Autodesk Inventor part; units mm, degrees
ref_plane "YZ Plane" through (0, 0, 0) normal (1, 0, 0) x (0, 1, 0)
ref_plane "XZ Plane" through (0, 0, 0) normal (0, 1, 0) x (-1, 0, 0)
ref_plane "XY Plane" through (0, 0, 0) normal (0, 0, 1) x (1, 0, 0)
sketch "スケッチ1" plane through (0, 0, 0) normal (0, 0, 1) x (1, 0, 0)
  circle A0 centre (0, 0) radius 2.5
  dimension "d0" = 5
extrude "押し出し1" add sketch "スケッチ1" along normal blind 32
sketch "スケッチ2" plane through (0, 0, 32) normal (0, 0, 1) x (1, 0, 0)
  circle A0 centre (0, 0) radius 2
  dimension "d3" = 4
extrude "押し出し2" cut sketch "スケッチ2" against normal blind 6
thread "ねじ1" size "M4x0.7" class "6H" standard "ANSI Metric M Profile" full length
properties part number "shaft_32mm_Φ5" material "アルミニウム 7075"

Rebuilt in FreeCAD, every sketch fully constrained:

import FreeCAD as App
import Part
import Sketcher

V = App.Vector

doc = App.newDocument("Part")
body = doc.addObject("PartDesign::Body", "Body")

# Sketch on XY plane
sketch1 = doc.addObject("Sketcher::SketchObject", "Sketch")
body.addObject(sketch1)
sketch1.AttachmentSupport = (doc.XY_Plane, [""])
sketch1.MapMode = "FlatFace"
sketch1.addGeometry(Part.Circle(V(0, 0, 0), V(0, 0, 1), 2.5), False)
sketch1.addConstraint([
    Sketcher.Constraint("Coincident", 0, 3, -1, 1),
    Sketcher.Constraint("Diameter", 0, 5.0),
])
pad1 = doc.addObject("PartDesign::Pad", "Pad")
body.addObject(pad1)
pad1.Profile = sketch1
pad1.Length = 32

# Sketch on XY plane
sketch2 = doc.addObject("Sketcher::SketchObject", "Sketch001")
body.addObject(sketch2)
sketch2.AttachmentSupport = (doc.XY_Plane, [""])
sketch2.MapMode = "FlatFace"
sketch2.AttachmentOffset = App.Placement(V(0, 0, 32), App.Rotation())
sketch2.addGeometry(Part.Circle(V(0, 0, 0), V(0, 0, 1), 2), False)
sketch2.addConstraint([
    Sketcher.Constraint("Coincident", 0, 3, -1, 1),
    Sketcher.Constraint("Diameter", 0, 4.0),
])
pocket1 = doc.addObject("PartDesign::Pocket", "Pocket")
body.addObject(pocket1)
pocket1.Profile = sketch2
pocket1.Length = 6

doc.recompute()
